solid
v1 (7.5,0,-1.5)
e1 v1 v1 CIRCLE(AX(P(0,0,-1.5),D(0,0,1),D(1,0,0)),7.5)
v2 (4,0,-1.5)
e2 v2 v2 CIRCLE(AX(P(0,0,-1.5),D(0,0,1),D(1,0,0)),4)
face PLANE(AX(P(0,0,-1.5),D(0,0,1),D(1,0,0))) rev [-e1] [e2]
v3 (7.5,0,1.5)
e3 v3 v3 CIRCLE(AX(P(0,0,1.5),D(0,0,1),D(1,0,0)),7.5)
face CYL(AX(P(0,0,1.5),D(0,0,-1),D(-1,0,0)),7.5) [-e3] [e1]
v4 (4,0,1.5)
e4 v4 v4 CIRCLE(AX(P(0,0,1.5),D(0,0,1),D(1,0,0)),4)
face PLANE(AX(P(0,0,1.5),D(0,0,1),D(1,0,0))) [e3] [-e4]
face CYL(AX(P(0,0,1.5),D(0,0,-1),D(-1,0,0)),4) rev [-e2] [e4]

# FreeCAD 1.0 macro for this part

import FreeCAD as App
import Part
import Sketcher

V = App.Vector
Q = App.Units.Quantity

doc = App.newDocument("Part")
body = doc.addObject("PartDesign::Body", "Body")

sketch1 = body.newObject("Sketcher::SketchObject", "Sketch")
sketch1.AttachmentSupport = (doc.getObject("XY_Plane"), [""])
sketch1.MapMode = "FlatFace"
sketch1.addGeometry([
    Part.Circle(V(0, 0, 0), V(0, 0, 1), 7.5),
    Part.Circle(V(0, 0, 0), V(0, 0, 1), 4),
], False)
sketch1.addConstraint([
    Sketcher.Constraint("Coincident", 0, 3, -1, 1),
    Sketcher.Constraint("Coincident", 1, 3, -1, 1),
    Sketcher.Constraint("Diameter", 0, Q("15 mm")),
    Sketcher.Constraint("Diameter", 1, Q("8 mm")),
])
pad1 = body.newObject("PartDesign::Pad", "Pad")
pad1.Profile = sketch1
pad1.Length = 3
pad1.Midplane = True

doc.recompute()
